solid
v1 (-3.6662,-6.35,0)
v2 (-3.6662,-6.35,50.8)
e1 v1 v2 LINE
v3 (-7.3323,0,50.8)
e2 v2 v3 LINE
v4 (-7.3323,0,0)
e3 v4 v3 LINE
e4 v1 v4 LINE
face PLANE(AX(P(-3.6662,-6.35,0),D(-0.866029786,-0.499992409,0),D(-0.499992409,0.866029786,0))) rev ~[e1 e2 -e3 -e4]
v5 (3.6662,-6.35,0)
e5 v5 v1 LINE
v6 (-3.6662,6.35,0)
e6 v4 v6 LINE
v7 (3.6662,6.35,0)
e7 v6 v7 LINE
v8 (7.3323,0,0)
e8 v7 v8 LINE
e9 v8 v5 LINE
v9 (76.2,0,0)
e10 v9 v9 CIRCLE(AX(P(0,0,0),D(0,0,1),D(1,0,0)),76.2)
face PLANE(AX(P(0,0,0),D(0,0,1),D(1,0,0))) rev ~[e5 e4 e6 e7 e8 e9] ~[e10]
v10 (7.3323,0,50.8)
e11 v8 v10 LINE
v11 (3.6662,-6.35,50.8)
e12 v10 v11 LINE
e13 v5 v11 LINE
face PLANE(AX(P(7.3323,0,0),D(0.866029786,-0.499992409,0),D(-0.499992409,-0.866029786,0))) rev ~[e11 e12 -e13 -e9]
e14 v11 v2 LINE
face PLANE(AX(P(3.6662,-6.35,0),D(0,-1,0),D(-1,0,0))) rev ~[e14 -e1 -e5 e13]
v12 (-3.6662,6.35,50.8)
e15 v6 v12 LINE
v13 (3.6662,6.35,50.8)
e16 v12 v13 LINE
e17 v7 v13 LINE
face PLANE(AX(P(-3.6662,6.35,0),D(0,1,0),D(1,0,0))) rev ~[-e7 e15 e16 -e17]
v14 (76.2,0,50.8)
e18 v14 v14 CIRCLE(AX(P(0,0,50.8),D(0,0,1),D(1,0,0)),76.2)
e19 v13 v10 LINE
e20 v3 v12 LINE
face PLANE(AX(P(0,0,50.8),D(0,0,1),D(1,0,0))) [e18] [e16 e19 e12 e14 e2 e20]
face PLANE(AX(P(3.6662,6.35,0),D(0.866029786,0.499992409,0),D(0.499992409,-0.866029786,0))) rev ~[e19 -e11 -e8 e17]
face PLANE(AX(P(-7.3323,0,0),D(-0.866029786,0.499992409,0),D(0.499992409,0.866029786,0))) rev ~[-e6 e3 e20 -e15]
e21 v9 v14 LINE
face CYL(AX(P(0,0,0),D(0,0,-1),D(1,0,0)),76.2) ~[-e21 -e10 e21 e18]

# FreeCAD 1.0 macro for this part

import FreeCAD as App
import Part
import Sketcher

V = App.Vector
Q = App.Units.Quantity


def add_polygon(sketch, points):
    """Adds a closed chain of lines whose ends are joined by coincident constraints."""
    first, n = sketch.GeometryCount, len(points)
    for a, b in zip(points, points[1:] + points[:1]):
        sketch.addGeometry(Part.LineSegment(App.Vector(*a, 0), App.Vector(*b, 0)), False)
    for i in range(n):
        sketch.addConstraint(Sketcher.Constraint("Coincident", first + i, 2, first + (i + 1) % n, 1))

doc = App.newDocument("Part")
params = doc.addObject("Spreadsheet::Sheet", "Params")
for row, (alias, value) in enumerate([
    ("sketch1_diameter", "6 in"),
    ("pad1_length", "2 in"),
], start=1):
    params.set(f"A{row}", alias)
    params.set(f"B{row}", "=" + value)
    params.setAlias(f"B{row}", alias)

body = doc.addObject("PartDesign::Body", "Body")

# Sketch on XY plane
sketch1 = body.newObject("Sketcher::SketchObject", "Sketch")
sketch1.AttachmentSupport = (doc.getObject("XY_Plane"), [""])
sketch1.MapMode = "FlatFace"
sketch1.addGeometry(Part.Circle(V(0, 0, 0), V(0, 0, 1), 76), False)  # 0
add_polygon(sketch1, [(-7, 0), (-4, 6), (4, 6), (7, 0), (4, -6), (-4, -6)])  # lines 1-6
sketch1.addConstraint(Sketcher.Constraint("Horizontal", 2))
sketch1.addConstraint(Sketcher.Constraint("Horizontal", 5))
sketch1.addConstraint(Sketcher.Constraint("Coincident", 0, 3, -1, 1))
sketch1.addConstraint(Sketcher.Constraint("Symmetric", 1, 2, 4, 2, -1, 1))
sketch1.addConstraint(Sketcher.Constraint("Symmetric", 3, 2, 6, 2, -1, 1))
sketch1.addConstraint(Sketcher.Constraint("PointOnObject", 3, 2, -1))
sketch1.addConstraint(Sketcher.Constraint("Parallel", 3, 6))
sketch1.addConstraint(Sketcher.Constraint("Vertical", 2, 2, 4, 2))
sketch1.addConstraint(Sketcher.Constraint("Diameter", 0, Q("6 in")))
sketch1.addConstraint(Sketcher.Constraint("DistanceY", 4, 2, 2, 2, Q("0.5 in")))
sketch1.addConstraint(Sketcher.Constraint("Angle", 1, Q("60.0005 deg")))
sketch1.addConstraint(Sketcher.Constraint("DistanceX", 1, 2, 3, 2, Q("0.433 in")))
sketch1.setExpression("Constraints[14]", "Params.sketch1_diameter")
pad1 = body.newObject("PartDesign::Pad", "Pad")
pad1.Profile = sketch1
pad1.setExpression("Length", "Params.pad1_length")

doc.recompute()
